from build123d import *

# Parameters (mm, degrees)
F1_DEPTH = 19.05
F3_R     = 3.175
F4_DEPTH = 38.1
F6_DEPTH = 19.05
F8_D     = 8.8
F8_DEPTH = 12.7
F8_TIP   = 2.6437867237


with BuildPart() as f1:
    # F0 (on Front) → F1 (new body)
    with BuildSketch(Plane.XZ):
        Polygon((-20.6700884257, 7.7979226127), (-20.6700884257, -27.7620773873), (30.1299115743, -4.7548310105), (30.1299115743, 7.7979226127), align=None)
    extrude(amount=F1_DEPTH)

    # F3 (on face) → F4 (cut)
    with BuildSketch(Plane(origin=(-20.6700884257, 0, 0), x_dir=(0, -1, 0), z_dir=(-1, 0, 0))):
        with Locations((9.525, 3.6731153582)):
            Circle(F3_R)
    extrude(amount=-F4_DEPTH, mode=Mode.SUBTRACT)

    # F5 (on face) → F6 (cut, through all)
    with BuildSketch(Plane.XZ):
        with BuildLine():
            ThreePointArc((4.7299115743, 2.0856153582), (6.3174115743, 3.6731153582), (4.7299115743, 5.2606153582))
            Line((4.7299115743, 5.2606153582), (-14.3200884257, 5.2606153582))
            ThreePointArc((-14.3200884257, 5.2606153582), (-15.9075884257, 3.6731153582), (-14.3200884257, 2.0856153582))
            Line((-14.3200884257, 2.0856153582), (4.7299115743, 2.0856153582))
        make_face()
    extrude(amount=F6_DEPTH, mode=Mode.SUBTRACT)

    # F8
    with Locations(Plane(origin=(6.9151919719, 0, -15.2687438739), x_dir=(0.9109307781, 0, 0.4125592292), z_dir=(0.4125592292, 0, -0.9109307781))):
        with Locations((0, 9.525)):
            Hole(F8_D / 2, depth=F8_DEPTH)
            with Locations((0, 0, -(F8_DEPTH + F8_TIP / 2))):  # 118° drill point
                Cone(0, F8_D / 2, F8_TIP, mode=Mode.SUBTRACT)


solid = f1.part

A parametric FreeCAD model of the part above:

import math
import FreeCAD as App
import Part
import Sketcher
Q = App.Units.Quantity


def add_polygon(sketch, points):
    """Adds a closed chain of lines whose ends are joined by coincident constraints."""
    first, n = sketch.GeometryCount, len(points)
    for a, b in zip(points, points[1:] + points[:1]):
        sketch.addGeometry(Part.LineSegment(App.Vector(*a, 0), App.Vector(*b, 0)), False)
    for i in range(n):
        sketch.addConstraint(Sketcher.Constraint("Coincident", first + i, 2, first + (i + 1) % n, 1))

doc = App.newDocument("Part")
body = doc.addObject("PartDesign::Body", "Body")

# Sketch on XZ plane
sketch1 = body.newObject("Sketcher::SketchObject", "Sketch")
sketch1.AttachmentSupport = (doc.getObject("XZ_Plane"), [""])
sketch1.MapMode = "FlatFace"
add_polygon(sketch1, [(-21, 8), (-21, -28), (30, -5), (30, 8)])  # lines 0-3
sketch1.addConstraint(Sketcher.Constraint("Vertical", 0))
sketch1.addConstraint(Sketcher.Constraint("Vertical", 2))
sketch1.addConstraint(Sketcher.Constraint("Horizontal", 3))
sketch1.addConstraint(Sketcher.Constraint("DistanceX", 3, 2, 3, 1, Q("2 in")))
sketch1.addConstraint(Sketcher.Constraint("DistanceY", 0, 2, 0, 1, Q("1.4 in")))
sketch1.addConstraint(Sketcher.Constraint("DistanceY", 2, 1, 2, 2, 12.552754))
sketch1.addConstraint(Sketcher.Constraint("DistanceX", 0, 2, -1, 1, 20.670088))
sketch1.addConstraint(Sketcher.Constraint("DistanceY", 1, 2, -1, 1, 4.754831))
pad1 = body.newObject("PartDesign::Pad", "Pad")
pad1.Profile = sketch1
pad1.Length = Q("0.75 in")

# Sketch on YZ plane
sketch2 = body.newObject("Sketcher::SketchObject", "Sketch001")
sketch2.AttachmentSupport = (doc.getObject("YZ_Plane"), [""])
sketch2.MapMode = "FlatFace"
sketch2.AttachmentOffset = App.Placement(App.Vector(0, 0, -20.670088), App.Rotation())
sketch2.addGeometry(Part.Circle(App.Vector(-9.5, 3.7, 0), App.Vector(0, 0, 1), 3.2), False)
sketch2.addConstraint(Sketcher.Constraint("Diameter", 0, Q("0.25 in")))
sketch2.addConstraint(Sketcher.Constraint("DistanceX", 0, 3, -1, 1, Q("0.375 in")))
sketch2.addConstraint(Sketcher.Constraint("DistanceY", -1, 1, 0, 3, 3.673115))
pocket1 = body.newObject("PartDesign::Pocket", "Pocket")
pocket1.Profile = sketch2
pocket1.Length = Q("1.5 in")
pocket1.Reversed = True

# Sketch on XZ plane
sketch3 = body.newObject("Sketcher::SketchObject", "Sketch002")
sketch3.AttachmentSupport = (doc.getObject("XZ_Plane"), [""])
sketch3.MapMode = "FlatFace"
sketch3.addGeometry(Part.ArcOfCircle(Part.Circle(App.Vector(4.7, 3.7, 0), App.Vector(0, 0, 1), 1.6), math.radians(-90), math.radians(90)), False)
sketch3.addGeometry(Part.LineSegment(App.Vector(4.7, 5.3, 0), App.Vector(-14.3, 5.3, 0)), False)
sketch3.addGeometry(Part.ArcOfCircle(Part.Circle(App.Vector(-14.3, 3.7, 0), App.Vector(0, 0, 1), 1.6), math.radians(90), math.radians(270)), False)
sketch3.addGeometry(Part.LineSegment(App.Vector(-14.3, 2.1, 0), App.Vector(4.7, 2.1, 0)), False)
sketch3.addConstraint(Sketcher.Constraint("Tangent", 0, 2, 1, 1))
sketch3.addConstraint(Sketcher.Constraint("Tangent", 1, 2, 2, 1))
sketch3.addConstraint(Sketcher.Constraint("Tangent", 2, 2, 3, 1))
sketch3.addConstraint(Sketcher.Constraint("Tangent", 3, 2, 0, 1))
sketch3.addConstraint(Sketcher.Constraint("Horizontal", 1))
sketch3.addConstraint(Sketcher.Constraint("Horizontal", 3))
sketch3.addConstraint(Sketcher.Constraint("Radius", 0, Q("0.0625 in")))
sketch3.addConstraint(Sketcher.Constraint("DistanceX", 1, 2, 1, 1, Q("0.75 in")))
sketch3.addConstraint(Sketcher.Constraint("DistanceX", -1, 1, 0, 3, 4.729912))
sketch3.addConstraint(Sketcher.Constraint("DistanceY", -1, 1, 0, 3, 3.673115))
pocket2 = body.newObject("PartDesign::Pocket", "Pocket001")
pocket2.Profile = sketch3
pocket2.Type = "ThroughAll"
pocket2.Reversed = True

# Sketch on an angled plane
sketch4 = body.newObject("Sketcher::SketchObject", "Sketch003")
sketch4.Placement = App.Placement(App.Vector(6.915192, 0, -15.268744), App.Rotation(App.Vector(0.910930778, 0, 0.412559229), App.Vector(0, -1, 0), App.Vector(0.412559229, 0, -0.910930778), "ZXY"))
sketch4.addGeometry(Part.Circle(App.Vector(0, 9.5, 0), App.Vector(0, 0, 1), 4.4), False)
sketch4.addConstraint(Sketcher.Constraint("PointOnObject", 0, 3, -2))
sketch4.addConstraint(Sketcher.Constraint("Diameter", 0, 8.8))
sketch4.addConstraint(Sketcher.Constraint("DistanceY", -1, 1, 0, 3, Q("0.375 in")))
doc.recompute()
hole = body.newObject("PartDesign::Hole", "Hole")
hole.Profile = sketch4
hole.ThreadType = "None"
hole.Diameter = 8.8
hole.DepthType = "Dimension"
hole.Depth = Q("0.5 in")
hole.DrillPoint = "Angled"
hole.DrillPointAngle = 118

doc.recompute()
